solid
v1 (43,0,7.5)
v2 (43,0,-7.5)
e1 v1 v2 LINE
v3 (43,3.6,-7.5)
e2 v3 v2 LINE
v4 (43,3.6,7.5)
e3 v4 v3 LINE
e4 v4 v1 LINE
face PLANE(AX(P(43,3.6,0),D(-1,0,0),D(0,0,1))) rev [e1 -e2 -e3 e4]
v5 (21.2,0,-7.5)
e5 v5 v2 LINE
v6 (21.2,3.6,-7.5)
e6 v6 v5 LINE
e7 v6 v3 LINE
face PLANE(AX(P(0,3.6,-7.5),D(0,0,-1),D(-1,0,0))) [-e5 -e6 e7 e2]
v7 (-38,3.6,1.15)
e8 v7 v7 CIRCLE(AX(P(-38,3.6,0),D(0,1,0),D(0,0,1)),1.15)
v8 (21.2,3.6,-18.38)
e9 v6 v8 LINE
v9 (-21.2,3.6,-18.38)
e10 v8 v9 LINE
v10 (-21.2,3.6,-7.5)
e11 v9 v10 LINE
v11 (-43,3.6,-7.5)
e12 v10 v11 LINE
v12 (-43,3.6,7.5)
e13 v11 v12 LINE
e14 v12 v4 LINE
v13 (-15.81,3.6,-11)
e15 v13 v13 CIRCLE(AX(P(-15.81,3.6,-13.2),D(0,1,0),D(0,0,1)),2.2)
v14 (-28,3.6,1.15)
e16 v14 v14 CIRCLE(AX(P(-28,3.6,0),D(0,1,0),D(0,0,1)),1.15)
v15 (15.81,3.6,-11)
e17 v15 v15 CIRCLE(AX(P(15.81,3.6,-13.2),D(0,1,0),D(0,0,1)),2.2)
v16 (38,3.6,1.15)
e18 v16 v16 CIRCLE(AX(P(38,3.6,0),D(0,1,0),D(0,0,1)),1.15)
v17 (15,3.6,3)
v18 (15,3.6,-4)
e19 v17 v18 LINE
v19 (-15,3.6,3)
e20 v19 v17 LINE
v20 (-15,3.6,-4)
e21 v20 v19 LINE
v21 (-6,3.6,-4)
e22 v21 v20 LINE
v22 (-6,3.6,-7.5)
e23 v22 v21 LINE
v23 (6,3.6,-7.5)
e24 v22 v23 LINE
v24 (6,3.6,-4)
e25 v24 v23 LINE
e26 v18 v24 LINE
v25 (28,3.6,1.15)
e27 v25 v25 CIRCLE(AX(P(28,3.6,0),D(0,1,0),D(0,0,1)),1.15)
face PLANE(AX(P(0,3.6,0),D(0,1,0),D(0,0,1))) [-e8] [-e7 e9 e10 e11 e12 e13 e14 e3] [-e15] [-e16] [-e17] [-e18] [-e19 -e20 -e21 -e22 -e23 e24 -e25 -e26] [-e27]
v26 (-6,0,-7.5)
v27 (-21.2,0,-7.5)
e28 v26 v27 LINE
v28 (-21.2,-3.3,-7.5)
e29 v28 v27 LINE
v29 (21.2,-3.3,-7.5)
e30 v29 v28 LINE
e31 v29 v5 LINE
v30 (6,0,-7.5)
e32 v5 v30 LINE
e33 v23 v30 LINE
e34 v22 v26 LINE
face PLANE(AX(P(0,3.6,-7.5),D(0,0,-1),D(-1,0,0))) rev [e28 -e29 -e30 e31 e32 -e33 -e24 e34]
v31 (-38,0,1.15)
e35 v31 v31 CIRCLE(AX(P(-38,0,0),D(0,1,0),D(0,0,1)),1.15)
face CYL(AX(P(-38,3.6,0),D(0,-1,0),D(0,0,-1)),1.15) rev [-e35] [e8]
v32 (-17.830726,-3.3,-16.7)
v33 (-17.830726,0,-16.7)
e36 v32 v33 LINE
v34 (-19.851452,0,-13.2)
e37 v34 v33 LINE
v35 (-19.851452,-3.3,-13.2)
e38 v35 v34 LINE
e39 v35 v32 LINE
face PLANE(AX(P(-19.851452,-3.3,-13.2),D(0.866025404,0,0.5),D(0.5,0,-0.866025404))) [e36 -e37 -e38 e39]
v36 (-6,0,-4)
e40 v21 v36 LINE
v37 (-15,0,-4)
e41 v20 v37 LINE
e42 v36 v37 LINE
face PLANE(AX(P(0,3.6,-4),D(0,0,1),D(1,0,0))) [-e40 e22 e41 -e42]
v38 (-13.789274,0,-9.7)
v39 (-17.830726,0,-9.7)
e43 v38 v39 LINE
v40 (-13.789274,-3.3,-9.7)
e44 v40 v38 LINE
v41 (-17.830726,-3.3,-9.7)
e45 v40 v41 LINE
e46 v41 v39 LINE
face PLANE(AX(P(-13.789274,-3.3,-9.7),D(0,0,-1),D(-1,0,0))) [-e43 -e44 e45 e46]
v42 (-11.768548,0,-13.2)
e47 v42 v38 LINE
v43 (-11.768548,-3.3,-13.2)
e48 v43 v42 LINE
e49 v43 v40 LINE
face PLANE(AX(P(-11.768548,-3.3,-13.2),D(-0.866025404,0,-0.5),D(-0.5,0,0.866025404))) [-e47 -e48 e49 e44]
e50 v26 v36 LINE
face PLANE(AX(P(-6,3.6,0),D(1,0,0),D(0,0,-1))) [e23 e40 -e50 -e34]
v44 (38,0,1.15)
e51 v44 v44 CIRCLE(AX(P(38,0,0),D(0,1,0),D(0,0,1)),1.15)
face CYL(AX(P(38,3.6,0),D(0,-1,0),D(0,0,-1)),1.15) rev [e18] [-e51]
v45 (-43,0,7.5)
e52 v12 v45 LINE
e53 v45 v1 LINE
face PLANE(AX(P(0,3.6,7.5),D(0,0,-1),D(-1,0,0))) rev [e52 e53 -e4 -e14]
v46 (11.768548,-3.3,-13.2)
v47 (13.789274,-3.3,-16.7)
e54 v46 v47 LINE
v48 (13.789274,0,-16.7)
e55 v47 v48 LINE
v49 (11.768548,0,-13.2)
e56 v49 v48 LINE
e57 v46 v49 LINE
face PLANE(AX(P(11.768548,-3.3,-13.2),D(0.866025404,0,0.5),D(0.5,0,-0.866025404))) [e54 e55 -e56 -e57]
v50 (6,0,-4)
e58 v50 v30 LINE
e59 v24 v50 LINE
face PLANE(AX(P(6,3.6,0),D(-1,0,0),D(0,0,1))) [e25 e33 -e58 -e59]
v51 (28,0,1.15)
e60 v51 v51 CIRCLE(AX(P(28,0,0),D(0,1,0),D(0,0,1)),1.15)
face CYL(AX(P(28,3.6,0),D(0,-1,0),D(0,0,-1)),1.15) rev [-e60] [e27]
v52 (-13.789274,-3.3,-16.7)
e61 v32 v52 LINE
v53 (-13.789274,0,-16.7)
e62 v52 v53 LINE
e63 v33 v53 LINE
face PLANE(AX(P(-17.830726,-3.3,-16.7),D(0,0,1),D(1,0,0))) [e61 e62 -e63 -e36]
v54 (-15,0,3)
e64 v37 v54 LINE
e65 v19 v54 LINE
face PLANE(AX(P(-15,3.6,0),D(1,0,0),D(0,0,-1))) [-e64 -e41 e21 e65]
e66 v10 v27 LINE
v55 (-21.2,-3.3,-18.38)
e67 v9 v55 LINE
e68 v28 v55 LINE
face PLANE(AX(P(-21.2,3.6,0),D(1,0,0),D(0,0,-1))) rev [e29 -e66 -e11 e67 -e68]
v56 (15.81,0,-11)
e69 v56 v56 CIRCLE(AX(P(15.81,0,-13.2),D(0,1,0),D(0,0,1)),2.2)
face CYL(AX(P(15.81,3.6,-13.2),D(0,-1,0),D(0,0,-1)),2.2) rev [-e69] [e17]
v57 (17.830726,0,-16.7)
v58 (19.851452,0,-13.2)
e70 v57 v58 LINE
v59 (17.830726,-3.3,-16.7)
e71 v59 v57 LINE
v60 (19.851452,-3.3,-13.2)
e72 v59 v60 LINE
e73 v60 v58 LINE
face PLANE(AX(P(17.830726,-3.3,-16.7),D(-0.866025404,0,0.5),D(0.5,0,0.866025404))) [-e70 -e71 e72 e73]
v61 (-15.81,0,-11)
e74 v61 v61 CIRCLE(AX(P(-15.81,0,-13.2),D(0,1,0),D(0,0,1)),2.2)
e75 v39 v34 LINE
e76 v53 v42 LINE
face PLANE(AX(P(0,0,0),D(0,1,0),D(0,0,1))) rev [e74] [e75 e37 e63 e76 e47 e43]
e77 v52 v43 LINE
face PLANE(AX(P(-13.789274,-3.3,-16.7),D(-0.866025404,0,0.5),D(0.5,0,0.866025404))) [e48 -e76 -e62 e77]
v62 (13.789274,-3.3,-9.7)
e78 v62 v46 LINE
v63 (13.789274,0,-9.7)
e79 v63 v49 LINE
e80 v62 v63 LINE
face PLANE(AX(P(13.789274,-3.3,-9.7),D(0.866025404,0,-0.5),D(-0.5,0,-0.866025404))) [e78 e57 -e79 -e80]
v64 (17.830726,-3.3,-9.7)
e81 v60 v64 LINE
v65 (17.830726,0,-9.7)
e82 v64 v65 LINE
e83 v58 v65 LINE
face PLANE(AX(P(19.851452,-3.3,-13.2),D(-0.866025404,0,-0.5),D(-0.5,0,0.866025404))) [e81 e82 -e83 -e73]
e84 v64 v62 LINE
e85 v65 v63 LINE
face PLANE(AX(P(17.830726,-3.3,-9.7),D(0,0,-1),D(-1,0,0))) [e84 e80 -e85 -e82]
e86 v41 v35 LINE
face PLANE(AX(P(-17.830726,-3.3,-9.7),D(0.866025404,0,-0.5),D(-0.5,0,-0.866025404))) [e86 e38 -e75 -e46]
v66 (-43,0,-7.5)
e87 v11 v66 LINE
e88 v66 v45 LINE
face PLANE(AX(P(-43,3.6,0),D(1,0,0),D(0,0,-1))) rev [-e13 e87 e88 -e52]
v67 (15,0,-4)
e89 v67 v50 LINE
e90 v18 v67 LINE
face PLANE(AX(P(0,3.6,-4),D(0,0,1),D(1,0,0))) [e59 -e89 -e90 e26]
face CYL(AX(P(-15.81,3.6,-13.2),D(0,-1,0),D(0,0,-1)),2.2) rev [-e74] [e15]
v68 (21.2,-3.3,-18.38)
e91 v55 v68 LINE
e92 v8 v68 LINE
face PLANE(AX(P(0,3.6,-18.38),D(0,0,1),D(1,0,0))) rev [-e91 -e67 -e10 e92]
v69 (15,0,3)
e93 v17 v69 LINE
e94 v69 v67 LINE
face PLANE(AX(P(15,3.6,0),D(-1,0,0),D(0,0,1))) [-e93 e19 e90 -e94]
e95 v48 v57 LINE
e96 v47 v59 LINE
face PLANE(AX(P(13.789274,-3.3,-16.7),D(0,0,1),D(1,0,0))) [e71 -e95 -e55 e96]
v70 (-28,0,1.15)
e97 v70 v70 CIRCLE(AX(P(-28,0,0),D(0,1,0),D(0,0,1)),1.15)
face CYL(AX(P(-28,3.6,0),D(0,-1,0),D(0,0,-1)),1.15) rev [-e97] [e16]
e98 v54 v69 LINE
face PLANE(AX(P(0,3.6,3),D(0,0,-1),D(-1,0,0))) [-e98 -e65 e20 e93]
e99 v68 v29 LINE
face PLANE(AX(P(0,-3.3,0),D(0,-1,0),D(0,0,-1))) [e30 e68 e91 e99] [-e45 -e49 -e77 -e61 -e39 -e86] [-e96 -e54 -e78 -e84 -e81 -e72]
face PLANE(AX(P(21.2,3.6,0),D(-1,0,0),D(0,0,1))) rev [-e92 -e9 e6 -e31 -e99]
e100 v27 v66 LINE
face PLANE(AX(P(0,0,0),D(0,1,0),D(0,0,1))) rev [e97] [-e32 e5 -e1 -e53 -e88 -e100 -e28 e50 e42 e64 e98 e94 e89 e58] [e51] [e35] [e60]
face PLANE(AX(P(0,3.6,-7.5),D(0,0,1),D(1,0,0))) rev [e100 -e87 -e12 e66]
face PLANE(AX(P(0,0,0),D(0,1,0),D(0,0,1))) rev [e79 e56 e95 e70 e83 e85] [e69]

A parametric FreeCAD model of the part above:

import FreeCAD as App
import Part
import Sketcher

V = App.Vector
Q = App.Units.Quantity


def add_polygon(sketch, points):
    """Adds a closed chain of lines whose ends are joined by coincident constraints."""
    first, n = sketch.GeometryCount, len(points)
    for a, b in zip(points, points[1:] + points[:1]):
        sketch.addGeometry(Part.LineSegment(App.Vector(*a, 0), App.Vector(*b, 0)), False)
    for i in range(n):
        sketch.addConstraint(Sketcher.Constraint("Coincident", first + i, 2, first + (i + 1) % n, 1))

doc = App.newDocument("Part")
params = doc.addObject("Spreadsheet::Sheet", "Params")
for row, (alias, value) in enumerate([
    ("sketch1_diameter", "2.3 mm"),
    ("sketch1_diameter2", "4.4 mm"),
    ("sketch1_width", "86 mm"),
    ("sketch1_width2", "30 mm"),
    ("sketch1_width3", "9 mm"),
    ("pad1_length", "3.6 mm"),
    ("sketch2_width", "42.4 mm"),
    ("sketch2_height", "10.88 mm"),
    ("pad2_length", "3.3 mm"),
], start=1):
    params.set(f"A{row}", alias)
    params.set(f"B{row}", "=" + value)
    params.setAlias(f"B{row}", alias)

body = doc.addObject("PartDesign::Body", "Body")

# Sketch on XZ plane
sketch1 = body.newObject("Sketcher::SketchObject", "Sketch")
sketch1.AttachmentSupport = (doc.getObject("XZ_Plane"), [""])
sketch1.MapMode = "FlatFace"
add_polygon(sketch1, [(21.2, -7.5), (21.2, -18.4), (-21.2, -18.4), (-21.2, -7.5), (-43, -7.5), (-43, 7.5), (43, 7.5), (43, -7.5)])  # lines 0-7
sketch1.addGeometry(Part.Circle(V(-38, 0, 0), V(0, 0, 1), 1.1), False)  # 8
sketch1.addGeometry(Part.Circle(V(-28, 0, 0), V(0, 0, 1), 1.1), False)  # 9
sketch1.addGeometry(Part.Circle(V(28, 0, 0), V(0, 0, 1), 1.1), False)  # 10
sketch1.addGeometry(Part.Circle(V(38, 0, 0), V(0, 0, 1), 1.1), False)  # 11
add_polygon(sketch1, [(15, 3), (-15, 3), (-15, -4), (-6, -4), (-6, -7.5), (6, -7.5), (6, -4), (15, -4)])  # lines 12-19
sketch1.addGeometry(Part.Circle(V(-15.8, -13.2, 0), V(0, 0, 1), 2.2), False)  # 20
sketch1.addGeometry(Part.Circle(V(15.8, -13.2, 0), V(0, 0, 1), 2.2), False)  # 21
sketch1.addConstraint([
    Sketcher.Constraint("Vertical", 0),
    Sketcher.Constraint("Horizontal", 1),
    Sketcher.Constraint("Vertical", 2),
    Sketcher.Constraint("Horizontal", 3),
    Sketcher.Constraint("Vertical", 4),
    Sketcher.Constraint("Horizontal", 5),
    Sketcher.Constraint("Vertical", 6),
    Sketcher.Constraint("Horizontal", 7),
    Sketcher.Constraint("Horizontal", 12),
    Sketcher.Constraint("Vertical", 13),
    Sketcher.Constraint("Horizontal", 14),
    Sketcher.Constraint("Vertical", 15),
    Sketcher.Constraint("Horizontal", 16),
    Sketcher.Constraint("Vertical", 17),
    Sketcher.Constraint("Horizontal", 18),
    Sketcher.Constraint("Vertical", 19),
    Sketcher.Constraint("Equal", 8, 9),
    Sketcher.Constraint("Equal", 9, 10),
    Sketcher.Constraint("Equal", 10, 11),
    Sketcher.Constraint("Equal", 20, 21),
    Sketcher.Constraint("Symmetric", 9, 3, 10, 3, -1, 1),
    Sketcher.Constraint("Symmetric", 8, 3, 11, 3, -1, 1),
    Sketcher.Constraint("Symmetric", 3, 2, 5, 2, -1, 1),
    Sketcher.Constraint("Symmetric", 20, 3, 21, 3, -2),
    Sketcher.Constraint("Symmetric", 2, 2, 7, 2, -2),
    Sketcher.Constraint("Symmetric", 14, 2, 17, 2, -2),
    Sketcher.Constraint("PointOnObject", 8, 3, -1),
    Sketcher.Constraint("PointOnObject", 9, 3, -1),
    Sketcher.Constraint("Horizontal", 7, 2, 15, 2),
    Sketcher.Constraint("Equal", 14, 18),
    Sketcher.Constraint("Diameter", 8, 2.3),
    Sketcher.Constraint("Diameter", 20, 4.4),
    Sketcher.Constraint("DistanceX", 5, 1, 5, 2, 86.0),
    Sketcher.Constraint("DistanceX", 12, 2, 12, 1, 30.0),
    Sketcher.Constraint("DistanceX", 14, 1, 14, 2, 9.0),
    Sketcher.Constraint("DistanceY", 4, 1, 4, 2, 15.0),
    Sketcher.Constraint("DistanceY", 13, 2, 13, 1, 7.0),
    Sketcher.Constraint("DistanceX", 1, 2, 1, 1, 42.4),
    Sketcher.Constraint("DistanceY", 15, 2, 15, 1, 3.5),
    Sketcher.Constraint("DistanceX", 8, 3, -1, 1, 38.0),
    Sketcher.Constraint("DistanceX", 9, 3, -1, 1, 28.0),
    Sketcher.Constraint("DistanceY", 0, 2, 0, 1, 10.88),
    Sketcher.Constraint("DistanceY", 20, 3, -1, 1, 13.2),
    Sketcher.Constraint("DistanceX", 20, 3, -1, 1, 15.81),
])
sketch1.setExpression("Constraints[46]", "Params.sketch1_diameter")
sketch1.setExpression("Constraints[47]", "Params.sketch1_diameter2")
sketch1.setExpression("Constraints[48]", "Params.sketch1_width")
sketch1.setExpression("Constraints[49]", "Params.sketch1_width2")
sketch1.setExpression("Constraints[50]", "Params.sketch1_width3")
pad1 = body.newObject("PartDesign::Pad", "Pad")
pad1.Profile = sketch1
pad1.setExpression("Length", "Params.pad1_length")
pad1.Reversed = True

# Sketch on XZ plane
sketch2 = body.newObject("Sketcher::SketchObject", "Sketch001")
sketch2.AttachmentSupport = (doc.getObject("XZ_Plane"), [""])
sketch2.MapMode = "FlatFace"
add_polygon(sketch2, [(-21.2, -7.5), (-21.2, -18.4), (21.2, -18.4), (21.2, -7.5)])  # lines 0-3
add_polygon(sketch2, [(-13.8, -9.7), (-11.8, -13.2), (-13.8, -16.7), (-17.8, -16.7), (-19.9, -13.2), (-17.8, -9.7)])  # lines 4-9
add_polygon(sketch2, [(17.8, -9.7), (19.9, -13.2), (17.8, -16.7), (13.8, -16.7), (11.8, -13.2), (13.8, -9.7)])  # lines 10-15
sketch2.addConstraint([
    Sketcher.Constraint("Vertical", 0),
    Sketcher.Constraint("Horizontal", 1),
    Sketcher.Constraint("Vertical", 2),
    Sketcher.Constraint("Horizontal", 3),
    Sketcher.Constraint("Horizontal", 6),
    Sketcher.Constraint("Horizontal", 9),
    Sketcher.Constraint("Horizontal", 12),
    Sketcher.Constraint("Horizontal", 15),
    Sketcher.Constraint("Symmetric", 7, 2, 10, 2, -2),
    Sketcher.Constraint("Symmetric", 6, 2, 11, 2, -2),
    Sketcher.Constraint("Symmetric", 4, 2, 13, 2, -2),
    Sketcher.Constraint("Symmetric", 9, 2, 14, 2, -2),
    Sketcher.Constraint("Parallel", 4, 7),
    Sketcher.Constraint("Parallel", 5, 8),
    Sketcher.Constraint("Parallel", 7, 10),
    Sketcher.Constraint("Parallel", 8, 11),
    Sketcher.Constraint("Parallel", 10, 13),
    Sketcher.Constraint("Horizontal", 4, 2, 7, 2),
    Sketcher.Constraint("Vertical", 6, 2, 8, 2),
    Sketcher.Constraint("Angle", 4, Q("-60 deg")),
    Sketcher.Constraint("DistanceX", 1, 1, 1, 2, 42.4),
    Sketcher.Constraint("DistanceY", 6, 2, 8, 2, 7.0),
    Sketcher.Constraint("DistanceY", 0, 2, 0, 1, 10.88),
    Sketcher.Constraint("DistanceX", 0, 2, -1, 1, 21.2),
    Sketcher.Constraint("DistanceY", 2, 2, -1, 1, 7.5),
    Sketcher.Constraint("DistanceY", 4, 2, -1, 1, 13.2),
    Sketcher.Constraint("DistanceX", 4, 2, 10, 2, 31.62),
    Sketcher.Constraint("DistanceX", 6, 2, 6, 1, 4.041452),
])
sketch2.setExpression("Constraints[36]", "Params.sketch2_width")
sketch2.setExpression("Constraints[38]", "Params.sketch2_height")
pad2 = body.newObject("PartDesign::Pad", "Pad001")
pad2.Profile = sketch2
pad2.setExpression("Length", "Params.pad2_length")

doc.recompute()
